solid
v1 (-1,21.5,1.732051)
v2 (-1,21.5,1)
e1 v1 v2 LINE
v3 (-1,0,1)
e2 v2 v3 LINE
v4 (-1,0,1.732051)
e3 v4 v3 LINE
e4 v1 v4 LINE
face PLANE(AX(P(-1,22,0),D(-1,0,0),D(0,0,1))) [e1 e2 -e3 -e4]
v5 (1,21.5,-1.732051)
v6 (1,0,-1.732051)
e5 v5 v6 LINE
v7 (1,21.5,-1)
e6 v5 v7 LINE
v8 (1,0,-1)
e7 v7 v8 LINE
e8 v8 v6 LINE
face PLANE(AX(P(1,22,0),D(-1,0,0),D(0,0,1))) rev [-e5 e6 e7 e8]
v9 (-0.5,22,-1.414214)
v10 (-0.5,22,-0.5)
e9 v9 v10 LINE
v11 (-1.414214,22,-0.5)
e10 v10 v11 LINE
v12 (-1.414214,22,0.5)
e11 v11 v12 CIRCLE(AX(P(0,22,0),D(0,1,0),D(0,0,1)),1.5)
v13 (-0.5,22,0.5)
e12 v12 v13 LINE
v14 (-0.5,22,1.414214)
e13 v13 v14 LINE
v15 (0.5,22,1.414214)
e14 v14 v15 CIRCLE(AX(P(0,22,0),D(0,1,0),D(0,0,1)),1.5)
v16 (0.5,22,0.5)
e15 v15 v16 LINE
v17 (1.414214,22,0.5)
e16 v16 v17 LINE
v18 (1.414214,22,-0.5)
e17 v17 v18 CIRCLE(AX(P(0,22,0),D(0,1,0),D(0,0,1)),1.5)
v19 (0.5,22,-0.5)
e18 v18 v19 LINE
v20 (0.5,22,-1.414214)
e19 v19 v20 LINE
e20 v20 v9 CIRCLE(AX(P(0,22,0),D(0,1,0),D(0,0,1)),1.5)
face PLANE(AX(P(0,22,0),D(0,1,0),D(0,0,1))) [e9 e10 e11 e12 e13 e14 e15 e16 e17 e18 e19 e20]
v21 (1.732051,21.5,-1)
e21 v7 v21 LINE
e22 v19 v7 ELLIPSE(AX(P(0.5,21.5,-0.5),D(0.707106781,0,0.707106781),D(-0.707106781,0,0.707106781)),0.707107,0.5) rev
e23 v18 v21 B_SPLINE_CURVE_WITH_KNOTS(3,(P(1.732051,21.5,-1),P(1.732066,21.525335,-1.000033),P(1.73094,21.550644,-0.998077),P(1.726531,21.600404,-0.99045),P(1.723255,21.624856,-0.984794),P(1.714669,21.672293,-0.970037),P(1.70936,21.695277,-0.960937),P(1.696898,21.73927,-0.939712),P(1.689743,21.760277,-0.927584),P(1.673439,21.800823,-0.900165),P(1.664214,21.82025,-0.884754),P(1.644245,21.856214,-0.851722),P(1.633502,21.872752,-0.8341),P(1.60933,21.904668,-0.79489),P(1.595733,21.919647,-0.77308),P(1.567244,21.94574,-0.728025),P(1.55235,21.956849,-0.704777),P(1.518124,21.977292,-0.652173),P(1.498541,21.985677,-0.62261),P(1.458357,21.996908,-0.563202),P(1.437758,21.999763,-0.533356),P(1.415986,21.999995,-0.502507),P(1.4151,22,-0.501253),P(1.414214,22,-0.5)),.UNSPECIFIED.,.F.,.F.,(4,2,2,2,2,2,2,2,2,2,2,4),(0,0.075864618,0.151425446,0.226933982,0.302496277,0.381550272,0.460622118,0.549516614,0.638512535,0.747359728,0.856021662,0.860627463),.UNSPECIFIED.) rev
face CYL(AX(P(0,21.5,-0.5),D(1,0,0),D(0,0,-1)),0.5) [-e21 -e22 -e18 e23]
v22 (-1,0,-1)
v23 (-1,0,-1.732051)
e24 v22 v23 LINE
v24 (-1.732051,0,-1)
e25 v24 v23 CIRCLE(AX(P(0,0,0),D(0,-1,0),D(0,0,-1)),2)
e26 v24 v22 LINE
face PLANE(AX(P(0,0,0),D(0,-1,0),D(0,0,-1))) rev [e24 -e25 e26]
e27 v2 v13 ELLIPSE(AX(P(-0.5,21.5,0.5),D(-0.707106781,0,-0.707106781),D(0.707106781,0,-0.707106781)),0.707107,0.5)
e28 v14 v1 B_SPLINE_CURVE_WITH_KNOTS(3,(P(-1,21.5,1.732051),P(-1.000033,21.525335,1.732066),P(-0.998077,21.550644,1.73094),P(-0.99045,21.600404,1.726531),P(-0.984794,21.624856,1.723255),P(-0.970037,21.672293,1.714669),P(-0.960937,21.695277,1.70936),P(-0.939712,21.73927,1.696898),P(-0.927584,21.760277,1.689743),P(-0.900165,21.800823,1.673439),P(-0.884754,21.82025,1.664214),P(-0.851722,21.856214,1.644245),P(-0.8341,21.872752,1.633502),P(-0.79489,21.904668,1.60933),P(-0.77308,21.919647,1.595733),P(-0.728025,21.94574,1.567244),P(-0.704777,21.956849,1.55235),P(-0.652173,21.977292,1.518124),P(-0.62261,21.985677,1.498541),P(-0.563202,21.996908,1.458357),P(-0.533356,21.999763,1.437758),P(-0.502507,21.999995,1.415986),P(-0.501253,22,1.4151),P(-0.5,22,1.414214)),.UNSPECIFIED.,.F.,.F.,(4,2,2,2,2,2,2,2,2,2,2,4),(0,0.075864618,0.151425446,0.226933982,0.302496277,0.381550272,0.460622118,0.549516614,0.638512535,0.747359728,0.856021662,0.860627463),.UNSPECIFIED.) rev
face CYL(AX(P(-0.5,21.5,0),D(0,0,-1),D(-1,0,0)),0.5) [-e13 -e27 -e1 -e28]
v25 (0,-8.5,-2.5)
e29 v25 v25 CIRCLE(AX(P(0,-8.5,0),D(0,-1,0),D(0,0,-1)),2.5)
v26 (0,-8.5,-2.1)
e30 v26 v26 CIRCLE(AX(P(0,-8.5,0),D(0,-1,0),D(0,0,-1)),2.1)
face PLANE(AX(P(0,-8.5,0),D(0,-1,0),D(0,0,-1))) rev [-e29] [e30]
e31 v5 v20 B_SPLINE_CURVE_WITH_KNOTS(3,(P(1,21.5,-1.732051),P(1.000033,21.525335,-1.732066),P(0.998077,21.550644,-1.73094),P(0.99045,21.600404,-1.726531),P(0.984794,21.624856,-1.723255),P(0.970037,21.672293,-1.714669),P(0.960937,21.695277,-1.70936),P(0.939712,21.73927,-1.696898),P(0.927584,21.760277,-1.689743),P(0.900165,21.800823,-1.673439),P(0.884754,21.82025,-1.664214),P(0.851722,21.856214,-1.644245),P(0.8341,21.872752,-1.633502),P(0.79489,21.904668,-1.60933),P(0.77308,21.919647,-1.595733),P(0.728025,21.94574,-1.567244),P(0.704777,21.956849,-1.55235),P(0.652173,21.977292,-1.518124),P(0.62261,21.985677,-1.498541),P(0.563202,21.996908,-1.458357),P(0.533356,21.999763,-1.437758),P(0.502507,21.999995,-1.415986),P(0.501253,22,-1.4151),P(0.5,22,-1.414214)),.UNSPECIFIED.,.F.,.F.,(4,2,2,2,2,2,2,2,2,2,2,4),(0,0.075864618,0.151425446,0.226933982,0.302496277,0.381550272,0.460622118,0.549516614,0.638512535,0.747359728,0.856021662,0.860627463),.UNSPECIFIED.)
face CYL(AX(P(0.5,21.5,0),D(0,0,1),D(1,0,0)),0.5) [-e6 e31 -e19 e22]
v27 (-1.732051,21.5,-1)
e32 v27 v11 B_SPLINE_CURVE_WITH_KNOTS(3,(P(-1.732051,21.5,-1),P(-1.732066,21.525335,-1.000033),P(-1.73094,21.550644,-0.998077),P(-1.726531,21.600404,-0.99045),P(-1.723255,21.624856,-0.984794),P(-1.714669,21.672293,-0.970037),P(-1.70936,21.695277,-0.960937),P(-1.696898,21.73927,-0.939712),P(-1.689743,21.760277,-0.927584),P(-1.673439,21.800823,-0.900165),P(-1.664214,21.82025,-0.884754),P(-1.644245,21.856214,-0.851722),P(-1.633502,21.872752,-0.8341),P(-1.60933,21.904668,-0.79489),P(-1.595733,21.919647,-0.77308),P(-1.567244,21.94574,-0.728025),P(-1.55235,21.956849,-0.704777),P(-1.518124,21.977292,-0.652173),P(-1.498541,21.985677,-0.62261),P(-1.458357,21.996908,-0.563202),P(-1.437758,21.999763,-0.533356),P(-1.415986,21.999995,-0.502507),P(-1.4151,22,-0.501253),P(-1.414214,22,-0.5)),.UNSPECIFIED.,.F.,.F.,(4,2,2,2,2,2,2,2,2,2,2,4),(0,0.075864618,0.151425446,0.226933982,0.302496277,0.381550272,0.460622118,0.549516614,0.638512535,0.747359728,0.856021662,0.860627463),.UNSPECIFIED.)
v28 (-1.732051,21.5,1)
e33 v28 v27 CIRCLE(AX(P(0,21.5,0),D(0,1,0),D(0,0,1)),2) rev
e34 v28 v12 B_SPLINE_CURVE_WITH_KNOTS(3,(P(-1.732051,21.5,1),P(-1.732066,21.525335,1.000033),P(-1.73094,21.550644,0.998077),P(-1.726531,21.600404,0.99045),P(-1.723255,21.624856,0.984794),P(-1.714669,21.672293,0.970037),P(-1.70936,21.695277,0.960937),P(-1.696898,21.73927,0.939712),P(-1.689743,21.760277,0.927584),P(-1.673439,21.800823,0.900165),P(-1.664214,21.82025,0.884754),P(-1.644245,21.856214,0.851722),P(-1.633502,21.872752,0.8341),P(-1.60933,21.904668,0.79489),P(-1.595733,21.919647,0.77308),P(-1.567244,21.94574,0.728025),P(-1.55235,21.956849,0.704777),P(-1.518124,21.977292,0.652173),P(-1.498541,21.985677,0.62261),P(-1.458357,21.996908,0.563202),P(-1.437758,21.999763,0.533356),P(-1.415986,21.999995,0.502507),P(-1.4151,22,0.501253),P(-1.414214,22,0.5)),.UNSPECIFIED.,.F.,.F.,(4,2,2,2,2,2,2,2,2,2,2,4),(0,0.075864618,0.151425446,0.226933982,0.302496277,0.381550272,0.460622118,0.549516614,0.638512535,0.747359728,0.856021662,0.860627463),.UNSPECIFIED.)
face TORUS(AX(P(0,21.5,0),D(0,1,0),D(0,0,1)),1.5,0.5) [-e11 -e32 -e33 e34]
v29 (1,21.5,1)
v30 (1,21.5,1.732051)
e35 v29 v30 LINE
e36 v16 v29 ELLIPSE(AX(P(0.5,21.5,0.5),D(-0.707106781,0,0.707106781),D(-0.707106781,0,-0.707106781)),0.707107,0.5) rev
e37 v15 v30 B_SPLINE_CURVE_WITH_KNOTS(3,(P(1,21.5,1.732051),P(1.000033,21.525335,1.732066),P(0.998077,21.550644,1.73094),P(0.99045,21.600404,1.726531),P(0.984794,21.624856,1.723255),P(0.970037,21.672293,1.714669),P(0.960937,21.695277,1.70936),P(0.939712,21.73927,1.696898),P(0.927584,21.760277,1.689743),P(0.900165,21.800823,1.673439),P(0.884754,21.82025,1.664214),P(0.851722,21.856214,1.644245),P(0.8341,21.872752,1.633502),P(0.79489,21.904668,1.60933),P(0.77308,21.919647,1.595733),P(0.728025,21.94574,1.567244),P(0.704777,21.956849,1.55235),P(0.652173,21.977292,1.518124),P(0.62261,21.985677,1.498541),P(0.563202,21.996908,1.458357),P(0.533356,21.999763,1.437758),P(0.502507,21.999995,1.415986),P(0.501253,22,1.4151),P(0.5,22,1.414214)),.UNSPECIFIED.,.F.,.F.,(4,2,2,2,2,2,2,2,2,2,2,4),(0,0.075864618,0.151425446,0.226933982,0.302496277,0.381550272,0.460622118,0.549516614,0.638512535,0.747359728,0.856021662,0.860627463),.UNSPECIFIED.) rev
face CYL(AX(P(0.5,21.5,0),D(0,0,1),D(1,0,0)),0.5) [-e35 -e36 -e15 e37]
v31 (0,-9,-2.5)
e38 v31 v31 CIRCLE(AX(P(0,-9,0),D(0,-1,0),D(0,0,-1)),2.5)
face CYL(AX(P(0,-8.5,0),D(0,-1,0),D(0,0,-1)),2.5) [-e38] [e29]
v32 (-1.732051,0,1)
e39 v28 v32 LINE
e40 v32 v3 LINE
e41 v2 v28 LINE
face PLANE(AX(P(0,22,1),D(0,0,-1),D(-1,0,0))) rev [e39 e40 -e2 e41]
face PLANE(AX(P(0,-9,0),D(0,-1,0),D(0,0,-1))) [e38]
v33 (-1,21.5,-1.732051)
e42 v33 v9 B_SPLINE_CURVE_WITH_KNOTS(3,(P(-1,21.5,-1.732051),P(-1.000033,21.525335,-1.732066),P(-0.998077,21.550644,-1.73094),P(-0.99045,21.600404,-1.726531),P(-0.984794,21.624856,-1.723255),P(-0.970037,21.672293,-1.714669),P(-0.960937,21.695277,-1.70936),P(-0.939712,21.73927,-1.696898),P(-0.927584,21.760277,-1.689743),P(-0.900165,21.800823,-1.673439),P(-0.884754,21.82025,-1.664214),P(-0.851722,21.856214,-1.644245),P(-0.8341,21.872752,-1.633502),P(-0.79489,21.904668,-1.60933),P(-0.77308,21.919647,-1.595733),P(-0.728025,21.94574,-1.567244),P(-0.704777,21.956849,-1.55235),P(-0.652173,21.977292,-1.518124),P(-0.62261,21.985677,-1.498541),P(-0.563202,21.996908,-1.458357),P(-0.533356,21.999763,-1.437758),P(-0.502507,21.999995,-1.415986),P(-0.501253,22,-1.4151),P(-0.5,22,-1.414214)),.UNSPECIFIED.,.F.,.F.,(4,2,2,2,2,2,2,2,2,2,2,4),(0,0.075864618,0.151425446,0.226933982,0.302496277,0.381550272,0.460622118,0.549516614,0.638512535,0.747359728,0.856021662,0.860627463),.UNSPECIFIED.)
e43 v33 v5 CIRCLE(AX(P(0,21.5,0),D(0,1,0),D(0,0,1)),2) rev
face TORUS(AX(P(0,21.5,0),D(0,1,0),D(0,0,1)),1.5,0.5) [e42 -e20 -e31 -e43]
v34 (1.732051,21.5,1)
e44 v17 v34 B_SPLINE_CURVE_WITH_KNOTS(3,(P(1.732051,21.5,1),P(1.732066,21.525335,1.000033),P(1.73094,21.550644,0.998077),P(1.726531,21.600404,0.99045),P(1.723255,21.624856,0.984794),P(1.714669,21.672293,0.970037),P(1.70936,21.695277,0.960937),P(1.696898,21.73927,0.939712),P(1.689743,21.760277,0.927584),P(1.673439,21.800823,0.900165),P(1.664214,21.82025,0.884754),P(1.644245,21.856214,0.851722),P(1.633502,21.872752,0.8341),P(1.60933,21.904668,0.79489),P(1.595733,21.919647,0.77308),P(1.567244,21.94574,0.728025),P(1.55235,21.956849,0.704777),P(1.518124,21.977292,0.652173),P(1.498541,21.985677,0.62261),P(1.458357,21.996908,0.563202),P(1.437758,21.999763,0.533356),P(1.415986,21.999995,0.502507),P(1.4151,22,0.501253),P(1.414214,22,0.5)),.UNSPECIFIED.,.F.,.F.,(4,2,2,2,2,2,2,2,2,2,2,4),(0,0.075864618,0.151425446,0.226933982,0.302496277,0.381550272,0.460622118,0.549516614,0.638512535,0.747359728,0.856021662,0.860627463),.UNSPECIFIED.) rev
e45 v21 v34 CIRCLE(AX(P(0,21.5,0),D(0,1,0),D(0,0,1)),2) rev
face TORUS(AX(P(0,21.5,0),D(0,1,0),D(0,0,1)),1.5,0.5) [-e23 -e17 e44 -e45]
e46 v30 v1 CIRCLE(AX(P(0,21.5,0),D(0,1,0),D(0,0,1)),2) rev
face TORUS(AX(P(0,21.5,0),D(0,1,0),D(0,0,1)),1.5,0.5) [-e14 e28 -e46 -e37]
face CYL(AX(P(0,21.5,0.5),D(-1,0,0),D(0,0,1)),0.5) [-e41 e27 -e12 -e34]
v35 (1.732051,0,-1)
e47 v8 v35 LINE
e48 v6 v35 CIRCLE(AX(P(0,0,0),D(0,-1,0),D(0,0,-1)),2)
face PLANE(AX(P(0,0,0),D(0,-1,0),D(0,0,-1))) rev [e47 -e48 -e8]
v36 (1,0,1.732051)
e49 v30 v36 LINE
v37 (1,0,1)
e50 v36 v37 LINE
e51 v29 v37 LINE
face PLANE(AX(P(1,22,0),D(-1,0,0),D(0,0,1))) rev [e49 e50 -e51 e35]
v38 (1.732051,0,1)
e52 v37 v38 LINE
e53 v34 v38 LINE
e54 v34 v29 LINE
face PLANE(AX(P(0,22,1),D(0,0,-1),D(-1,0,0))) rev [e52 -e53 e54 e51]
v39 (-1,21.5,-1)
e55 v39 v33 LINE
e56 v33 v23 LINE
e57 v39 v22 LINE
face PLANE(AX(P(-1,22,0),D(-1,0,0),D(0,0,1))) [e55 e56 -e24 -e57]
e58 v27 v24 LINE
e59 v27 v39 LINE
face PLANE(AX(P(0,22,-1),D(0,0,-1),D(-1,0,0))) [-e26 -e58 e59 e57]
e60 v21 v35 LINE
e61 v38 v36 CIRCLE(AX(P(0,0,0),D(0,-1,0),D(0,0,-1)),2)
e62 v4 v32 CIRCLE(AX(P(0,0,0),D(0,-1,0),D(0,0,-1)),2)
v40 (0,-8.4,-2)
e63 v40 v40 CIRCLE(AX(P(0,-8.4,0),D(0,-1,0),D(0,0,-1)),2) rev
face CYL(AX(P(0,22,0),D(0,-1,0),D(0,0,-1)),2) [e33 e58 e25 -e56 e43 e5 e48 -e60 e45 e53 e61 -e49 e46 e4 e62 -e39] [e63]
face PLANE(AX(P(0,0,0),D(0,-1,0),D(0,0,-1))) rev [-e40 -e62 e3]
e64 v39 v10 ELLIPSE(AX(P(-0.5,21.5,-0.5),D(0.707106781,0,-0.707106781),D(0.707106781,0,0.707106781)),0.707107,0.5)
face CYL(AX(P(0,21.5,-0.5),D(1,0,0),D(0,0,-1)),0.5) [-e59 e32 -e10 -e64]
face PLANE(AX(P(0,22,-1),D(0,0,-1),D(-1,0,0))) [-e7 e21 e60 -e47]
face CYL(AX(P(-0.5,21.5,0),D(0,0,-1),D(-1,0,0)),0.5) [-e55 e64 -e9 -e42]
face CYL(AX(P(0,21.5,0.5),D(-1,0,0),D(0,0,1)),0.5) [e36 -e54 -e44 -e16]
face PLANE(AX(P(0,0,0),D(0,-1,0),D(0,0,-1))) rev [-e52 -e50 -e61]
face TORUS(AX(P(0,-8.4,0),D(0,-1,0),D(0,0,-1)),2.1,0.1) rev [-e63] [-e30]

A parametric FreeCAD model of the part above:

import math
import FreeCAD as App
import Part
import Sketcher
Q = App.Units.Quantity


def edges_at(feature, points):
    """Names of the edges that pass closest to the given points."""
    edges = feature.Shape.Edges
    near = lambda p: min(range(len(edges)), key=lambda i: edges[i].distToShape(Part.Vertex(*p))[0])
    return sorted({f"Edge{near(p) + 1}" for p in points})

doc = App.newDocument("Part")
body = doc.addObject("PartDesign::Body", "Body")

sketch1 = body.newObject("Sketcher::SketchObject", "Sketch")
sketch1.AttachmentSupport = (doc.getObject("XZ_Plane"), [""])
sketch1.MapMode = "FlatFace"
sketch1.addGeometry([
    Part.ArcOfCircle(Part.Circle(App.Vector(0, 0, 0), App.Vector(0, 0, 1), 2), math.radians(-120), math.radians(-60)),
    Part.LineSegment(App.Vector(-1, -1.7, 0), App.Vector(-1, -1, 0)),
    Part.LineSegment(App.Vector(-1, -1, 0), App.Vector(-1.7, -1, 0)),
    Part.ArcOfCircle(Part.Circle(App.Vector(0, 0, 0), App.Vector(0, 0, 1), 2), math.radians(150), math.radians(210)),
    Part.LineSegment(App.Vector(-1.7, 1, 0), App.Vector(-1, 1, 0)),
    Part.LineSegment(App.Vector(-1, 1, 0), App.Vector(-1, 1.7, 0)),
    Part.ArcOfCircle(Part.Circle(App.Vector(0, 0, 0), App.Vector(0, 0, 1), 2), math.radians(60), math.radians(120)),
    Part.LineSegment(App.Vector(1, 1.7, 0), App.Vector(1, 1, 0)),
    Part.LineSegment(App.Vector(1, 1, 0), App.Vector(1.7, 1, 0)),
    Part.ArcOfCircle(Part.Circle(App.Vector(0, 0, 0), App.Vector(0, 0, 1), 2), math.radians(-30), math.radians(30)),
    Part.LineSegment(App.Vector(1.7, -1, 0), App.Vector(1, -1, 0)),
    Part.LineSegment(App.Vector(1, -1, 0), App.Vector(1, -1.7, 0)),
], False)
sketch1.addConstraint([
    Sketcher.Constraint("Coincident", 0, 1, 1, 1),
    Sketcher.Constraint("Coincident", 1, 2, 2, 1),
    Sketcher.Constraint("Coincident", 2, 2, 3, 2),
    Sketcher.Constraint("Coincident", 3, 1, 4, 1),
    Sketcher.Constraint("Coincident", 4, 2, 5, 1),
    Sketcher.Constraint("Coincident", 5, 2, 6, 2),
    Sketcher.Constraint("Coincident", 6, 1, 7, 1),
    Sketcher.Constraint("Coincident", 7, 2, 8, 1),
    Sketcher.Constraint("Coincident", 8, 2, 9, 2),
    Sketcher.Constraint("Coincident", 9, 1, 10, 1),
    Sketcher.Constraint("Coincident", 10, 2, 11, 1),
    Sketcher.Constraint("Coincident", 11, 2, 0, 2),
    Sketcher.Constraint("Vertical", 1),
    Sketcher.Constraint("Horizontal", 2),
    Sketcher.Constraint("Horizontal", 4),
    Sketcher.Constraint("Vertical", 5),
    Sketcher.Constraint("Vertical", 7),
    Sketcher.Constraint("Horizontal", 8),
    Sketcher.Constraint("Horizontal", 10),
    Sketcher.Constraint("Vertical", 11),
    Sketcher.Constraint("Coincident", 0, 3, -1, 1),
    Sketcher.Constraint("Coincident", 3, 3, -1, 1),
    Sketcher.Constraint("Coincident", 6, 3, -1, 1),
    Sketcher.Constraint("Coincident", 9, 3, -1, 1),
    Sketcher.Constraint("Equal", 0, 3),
    Sketcher.Constraint("Equal", 3, 6),
    Sketcher.Constraint("Equal", 6, 9),
    Sketcher.Constraint("Symmetric", 1, 2, 7, 2, -1, 1),
    Sketcher.Constraint("Symmetric", 4, 2, 10, 2, -1, 1),
    Sketcher.Constraint("Symmetric", 4, 2, 7, 2, -2),
    Sketcher.Constraint("Equal", 10, 1),
    Sketcher.Constraint("Radius", 0, Q("2 mm")),
    Sketcher.Constraint("DistanceX", 0, 1, -1, 1, Q("1 mm")),
])
pad1 = body.newObject("PartDesign::Pad", "Pad")
pad1.Profile = sketch1
pad1.Length = 22
pad1.Reversed = True

sketch2 = body.newObject("Sketcher::SketchObject", "Sketch001")
sketch2.AttachmentSupport = (doc.getObject("XZ_Plane"), [""])
sketch2.MapMode = "FlatFace"
sketch2.addGeometry(Part.Circle(App.Vector(0, 0, 0), App.Vector(0, 0, 1), 2), False)
sketch2.addConstraint([
    Sketcher.Constraint("Coincident", 0, 3, -1, 1),
    Sketcher.Constraint("Diameter", 0, Q("4 mm")),
])
pad2 = body.newObject("PartDesign::Pad", "Pad001")
pad2.Profile = sketch2
pad2.Length = 9

sketch3 = body.newObject("Sketcher::SketchObject", "Sketch002")
sketch3.AttachmentSupport = (doc.getObject("XZ_Plane"), [""])
sketch3.MapMode = "FlatFace"
sketch3.AttachmentOffset = App.Placement(App.Vector(0, 0, 9), App.Rotation())
sketch3.addGeometry(Part.Circle(App.Vector(0, 0, 0), App.Vector(0, 0, 1), 2.5), False)
sketch3.addConstraint([
    Sketcher.Constraint("Coincident", 0, 3, -1, 1),
    Sketcher.Constraint("Diameter", 0, Q("5 mm")),
])
pad3 = body.newObject("PartDesign::Pad", "Pad002")
pad3.Profile = sketch3
pad3.Length = 0.5
pad3.Reversed = True
doc.recompute()

fillet = body.newObject("PartDesign::Fillet", "Fillet")
fillet.Base = (pad3, edges_at(pad3, [
    (-1, 22, -1.366),
    (-1.366, 22, -1),
    (-2, 22, 0),
    (-1.366, 22, 1),
    (-1, 22, 1.366),
    (0, 22, 2),
    (1, 22, 1.366),
    (1.366, 22, 1),
    (0, 22, -2),
    (2, 22, 0),
    (1.366, 22, -1),
    (1, 22, -1.366),
]))
fillet.Radius = 0.5
doc.recompute()

fillet2 = body.newObject("PartDesign::Fillet", "Fillet001")
fillet2.Base = (fillet, edges_at(fillet, [(0, -8.5, 2)]))
fillet2.Radius = 0.1

doc.recompute()
